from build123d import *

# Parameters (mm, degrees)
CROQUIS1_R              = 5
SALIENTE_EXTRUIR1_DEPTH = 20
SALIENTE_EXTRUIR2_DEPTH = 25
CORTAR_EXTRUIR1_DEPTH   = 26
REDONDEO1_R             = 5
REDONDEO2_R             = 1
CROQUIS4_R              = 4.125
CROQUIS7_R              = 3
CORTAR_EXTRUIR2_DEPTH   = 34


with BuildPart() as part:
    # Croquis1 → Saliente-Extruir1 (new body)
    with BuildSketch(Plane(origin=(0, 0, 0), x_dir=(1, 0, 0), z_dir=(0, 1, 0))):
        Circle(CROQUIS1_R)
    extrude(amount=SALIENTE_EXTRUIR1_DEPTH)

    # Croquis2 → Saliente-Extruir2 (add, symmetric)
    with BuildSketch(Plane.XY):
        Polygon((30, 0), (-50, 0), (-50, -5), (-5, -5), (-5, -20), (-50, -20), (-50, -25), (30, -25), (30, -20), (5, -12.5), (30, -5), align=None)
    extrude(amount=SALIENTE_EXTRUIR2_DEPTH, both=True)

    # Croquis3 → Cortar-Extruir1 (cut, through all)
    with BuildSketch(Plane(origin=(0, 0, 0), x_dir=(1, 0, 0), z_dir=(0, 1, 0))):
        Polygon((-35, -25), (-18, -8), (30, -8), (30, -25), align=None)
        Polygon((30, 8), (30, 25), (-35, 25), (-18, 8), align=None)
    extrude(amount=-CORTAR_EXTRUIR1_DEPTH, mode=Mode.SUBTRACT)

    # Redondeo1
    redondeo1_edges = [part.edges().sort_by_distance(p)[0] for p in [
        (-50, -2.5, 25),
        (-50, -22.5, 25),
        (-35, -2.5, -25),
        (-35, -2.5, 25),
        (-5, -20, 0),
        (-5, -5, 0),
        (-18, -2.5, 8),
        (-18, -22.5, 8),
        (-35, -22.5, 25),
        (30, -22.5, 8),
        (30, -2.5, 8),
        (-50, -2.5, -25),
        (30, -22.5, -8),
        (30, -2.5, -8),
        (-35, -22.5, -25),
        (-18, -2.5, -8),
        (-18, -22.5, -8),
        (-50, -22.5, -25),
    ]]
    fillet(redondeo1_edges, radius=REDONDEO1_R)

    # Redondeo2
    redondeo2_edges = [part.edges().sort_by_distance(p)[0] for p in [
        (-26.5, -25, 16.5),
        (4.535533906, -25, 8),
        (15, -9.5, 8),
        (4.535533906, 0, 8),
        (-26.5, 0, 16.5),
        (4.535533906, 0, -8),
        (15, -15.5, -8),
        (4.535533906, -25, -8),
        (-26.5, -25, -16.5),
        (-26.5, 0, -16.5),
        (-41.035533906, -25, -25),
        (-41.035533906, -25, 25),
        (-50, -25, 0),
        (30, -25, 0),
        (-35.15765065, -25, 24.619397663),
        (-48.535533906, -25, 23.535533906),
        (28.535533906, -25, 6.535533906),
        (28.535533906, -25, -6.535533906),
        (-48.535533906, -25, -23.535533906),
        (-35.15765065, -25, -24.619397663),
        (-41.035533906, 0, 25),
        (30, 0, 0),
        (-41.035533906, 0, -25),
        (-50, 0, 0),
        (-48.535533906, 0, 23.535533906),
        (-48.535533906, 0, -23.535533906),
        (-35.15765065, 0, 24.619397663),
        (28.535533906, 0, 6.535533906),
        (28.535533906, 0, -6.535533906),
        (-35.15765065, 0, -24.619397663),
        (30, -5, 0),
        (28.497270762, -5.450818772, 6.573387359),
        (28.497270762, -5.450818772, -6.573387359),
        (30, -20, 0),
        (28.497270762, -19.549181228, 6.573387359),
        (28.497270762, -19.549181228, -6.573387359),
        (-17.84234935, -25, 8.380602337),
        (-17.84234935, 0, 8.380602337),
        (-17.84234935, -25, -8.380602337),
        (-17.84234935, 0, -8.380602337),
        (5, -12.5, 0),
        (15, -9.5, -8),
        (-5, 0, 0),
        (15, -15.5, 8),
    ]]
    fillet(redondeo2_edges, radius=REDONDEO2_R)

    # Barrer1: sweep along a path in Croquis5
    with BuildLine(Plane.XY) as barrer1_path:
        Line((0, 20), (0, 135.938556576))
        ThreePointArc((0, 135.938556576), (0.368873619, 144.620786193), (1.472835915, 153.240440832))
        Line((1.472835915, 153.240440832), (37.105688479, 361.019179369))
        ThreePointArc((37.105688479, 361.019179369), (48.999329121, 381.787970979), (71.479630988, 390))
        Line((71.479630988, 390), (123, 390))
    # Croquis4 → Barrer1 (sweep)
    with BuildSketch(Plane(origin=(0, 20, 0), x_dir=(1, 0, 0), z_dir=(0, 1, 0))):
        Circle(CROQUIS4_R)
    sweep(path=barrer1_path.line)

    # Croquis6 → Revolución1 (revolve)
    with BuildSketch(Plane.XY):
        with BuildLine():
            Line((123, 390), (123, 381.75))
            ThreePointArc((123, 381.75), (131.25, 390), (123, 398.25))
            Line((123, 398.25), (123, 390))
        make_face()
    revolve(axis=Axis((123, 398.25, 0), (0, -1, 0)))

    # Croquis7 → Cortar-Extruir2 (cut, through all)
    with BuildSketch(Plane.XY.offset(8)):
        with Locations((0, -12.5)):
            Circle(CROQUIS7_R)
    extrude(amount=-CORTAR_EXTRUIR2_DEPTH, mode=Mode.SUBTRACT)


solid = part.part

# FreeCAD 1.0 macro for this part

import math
import FreeCAD as App
import Part
import Sketcher

V = App.Vector


def edges_at(feature, points):
    """Names of the edges that pass closest to the given points."""
    edges = feature.Shape.Edges
    near = lambda p: min(range(len(edges)), key=lambda i: edges[i].distToShape(Part.Vertex(*p))[0])
    return sorted({f"Edge{near(p) + 1}" for p in points})

doc = App.newDocument("Part")
params = doc.addObject("Spreadsheet::Sheet", "Params")
for row, (alias, value) in enumerate([
    ("sketch1_diameter", "10 mm"),
    ("pad1_length", "20 mm"),
    ("sketch2_width", "80 mm"),
    ("sketch2_width2", "45 mm"),
    ("sketch2_height", "5 mm"),
    ("sketch2_height2", "15 mm"),
    ("pad2_length", "50 mm"),
    ("sketch3_width", "65 mm"),
    ("sketch3_width2", "48 mm"),
    ("fillet_radius", "5 mm"),
    ("fillet2_radius", "1 mm"),
    ("sketch4_diameter", "8.25 mm"),
    ("sketch6_radius", "8.25 mm"),
    ("revolution_angle", "360 deg"),
    ("sketch7_diameter", "6 mm"),
], start=1):
    params.set(f"A{row}", alias)
    params.set(f"B{row}", "=" + value)
    params.setAlias(f"B{row}", alias)

body = doc.addObject("PartDesign::Body", "Body")

# Sketch on XZ plane
sketch1 = doc.addObject("Sketcher::SketchObject", "Sketch")
body.addObject(sketch1)
sketch1.AttachmentSupport = (doc.XZ_Plane, [""])
sketch1.MapMode = "FlatFace"
sketch1.addGeometry(Part.Circle(V(0, 0, 0), V(0, 0, 1), 5), False)
sketch1.addConstraint([
    Sketcher.Constraint("Coincident", 0, 3, -1, 1),
    Sketcher.Constraint("Diameter", 0, 10.0),
])
sketch1.setExpression("Constraints[1]", "Params.sketch1_diameter")
pad1 = doc.addObject("PartDesign::Pad", "Pad")
body.addObject(pad1)
pad1.Profile = sketch1
pad1.setExpression("Length", "Params.pad1_length")
pad1.Reversed = True

# Sketch on XY plane
sketch2 = doc.addObject("Sketcher::SketchObject", "Sketch001")
body.addObject(sketch2)
sketch2.AttachmentSupport = (doc.XY_Plane, [""])
sketch2.MapMode = "FlatFace"
sketch2.addGeometry([
    Part.LineSegment(V(30, 0, 0), V(-50, 0, 0)),  # 0
    Part.LineSegment(V(-50, 0, 0), V(-50, -5, 0)),  # 1
    Part.LineSegment(V(-50, -5, 0), V(-5, -5, 0)),  # 2
    Part.LineSegment(V(-5, -5, 0), V(-5, -20, 0)),  # 3
    Part.LineSegment(V(-5, -20, 0), V(-50, -20, 0)),  # 4
    Part.LineSegment(V(-50, -20, 0), V(-50, -25, 0)),  # 5
    Part.LineSegment(V(-50, -25, 0), V(30, -25, 0)),  # 6
    Part.LineSegment(V(30, -25, 0), V(30, -20, 0)),  # 7
    Part.LineSegment(V(30, -20, 0), V(5, -12.5, 0)),  # 8
    Part.LineSegment(V(5, -12.5, 0), V(30, -5, 0)),  # 9
    Part.LineSegment(V(30, -5, 0), V(30, 0, 0)),  # 10
], False)
sketch2.addConstraint([
    Sketcher.Constraint("Coincident", 0, 2, 1, 1),
    Sketcher.Constraint("Coincident", 1, 2, 2, 1),
    Sketcher.Constraint("Coincident", 2, 2, 3, 1),
    Sketcher.Constraint("Coincident", 3, 2, 4, 1),
    Sketcher.Constraint("Coincident", 4, 2, 5, 1),
    Sketcher.Constraint("Coincident", 5, 2, 6, 1),
    Sketcher.Constraint("Coincident", 6, 2, 7, 1),
    Sketcher.Constraint("Coincident", 7, 2, 8, 1),
    Sketcher.Constraint("Coincident", 8, 2, 9, 1),
    Sketcher.Constraint("Coincident", 9, 2, 10, 1),
    Sketcher.Constraint("Coincident", 10, 2, 0, 1),
    Sketcher.Constraint("Horizontal", 0),
    Sketcher.Constraint("Vertical", 1),
    Sketcher.Constraint("Horizontal", 2),
    Sketcher.Constraint("Vertical", 3),
    Sketcher.Constraint("Horizontal", 4),
    Sketcher.Constraint("Vertical", 5),
    Sketcher.Constraint("Horizontal", 6),
    Sketcher.Constraint("Vertical", 7),
    Sketcher.Constraint("Vertical", 10),
    Sketcher.Constraint("PointOnObject", 0, 2, -1),
    Sketcher.Constraint("Horizontal", 4, 2, 7, 2),
    Sketcher.Constraint("Horizontal", 2, 2, 9, 2),
    Sketcher.Constraint("Vertical", 1, 2, 4, 2),
    Sketcher.Constraint("Vertical", 7, 2, 9, 2),
    Sketcher.Constraint("Equal", 1, 5),
    Sketcher.Constraint("Equal", 8, 9),
    Sketcher.Constraint("DistanceX", 0, 2, 0, 1, 80.0),
    Sketcher.Constraint("DistanceX", 2, 1, 2, 2, 45.0),
    Sketcher.Constraint("DistanceY", 1, 2, 1, 1, 5.0),
    Sketcher.Constraint("DistanceY", 3, 2, 3, 1, 15.0),
    Sketcher.Constraint("DistanceX", 0, 2, -1, 1, 50.0),
    Sketcher.Constraint("DistanceX", -1, 1, 8, 2, 5.0),
])
sketch2.setExpression("Constraints[27]", "Params.sketch2_width")
sketch2.setExpression("Constraints[28]", "Params.sketch2_width2")
sketch2.setExpression("Constraints[29]", "Params.sketch2_height")
sketch2.setExpression("Constraints[30]", "Params.sketch2_height2")
pad2 = doc.addObject("PartDesign::Pad", "Pad001")
body.addObject(pad2)
pad2.Profile = sketch2
pad2.setExpression("Length", "Params.pad2_length")
pad2.Midplane = True

# Sketch on XZ plane
sketch3 = doc.addObject("Sketcher::SketchObject", "Sketch002")
body.addObject(sketch3)
sketch3.AttachmentSupport = (doc.XZ_Plane, [""])
sketch3.MapMode = "FlatFace"
sketch3.addGeometry([
    Part.LineSegment(V(-18, 8, 0), V(-35, 25, 0)),  # 0
    Part.LineSegment(V(-35, 25, 0), V(30, 25, 0)),  # 1
    Part.LineSegment(V(30, 25, 0), V(30, 8, 0)),  # 2
    Part.LineSegment(V(30, 8, 0), V(-18, 8, 0)),  # 3
    Part.LineSegment(V(30, -8, 0), V(30, -25, 0)),  # 4
    Part.LineSegment(V(30, -25, 0), V(-35, -25, 0)),  # 5
    Part.LineSegment(V(-35, -25, 0), V(-18, -8, 0)),  # 6
    Part.LineSegment(V(-18, -8, 0), V(30, -8, 0)),  # 7
], False)
sketch3.addConstraint([
    Sketcher.Constraint("Coincident", 0, 2, 1, 1),
    Sketcher.Constraint("Coincident", 1, 2, 2, 1),
    Sketcher.Constraint("Coincident", 2, 2, 3, 1),
    Sketcher.Constraint("Coincident", 3, 2, 0, 1),
    Sketcher.Constraint("Coincident", 4, 2, 5, 1),
    Sketcher.Constraint("Coincident", 5, 2, 6, 1),
    Sketcher.Constraint("Coincident", 6, 2, 7, 1),
    Sketcher.Constraint("Coincident", 7, 2, 4, 1),
    Sketcher.Constraint("Horizontal", 1),
    Sketcher.Constraint("Vertical", 2),
    Sketcher.Constraint("Horizontal", 3),
    Sketcher.Constraint("Vertical", 4),
    Sketcher.Constraint("Horizontal", 5),
    Sketcher.Constraint("Horizontal", 7),
    Sketcher.Constraint("Symmetric", 1, 2, 4, 2, -1),
    Sketcher.Constraint("Symmetric", 3, 2, 6, 2, -1),
    Sketcher.Constraint("Perpendicular", 0, 6),
    Sketcher.Constraint("Vertical", 0, 2, 5, 2),
    Sketcher.Constraint("DistanceX", 1, 1, 1, 2, 65.0),
    Sketcher.Constraint("DistanceX", 3, 2, 3, 1, 48.0),
    Sketcher.Constraint("DistanceX", 0, 2, -1, 1, 35.0),
    Sketcher.Constraint("DistanceY", -1, 1, 0, 2, 25.0),
])
sketch3.setExpression("Constraints[18]", "Params.sketch3_width")
sketch3.setExpression("Constraints[19]", "Params.sketch3_width2")
pocket1 = doc.addObject("PartDesign::Pocket", "Pocket")
body.addObject(pocket1)
pocket1.Profile = sketch3
pocket1.Type = "ThroughAll"
pocket1.Reversed = True
doc.recompute()

fillet = doc.addObject("PartDesign::Fillet", "Fillet")
body.addObject(fillet)
fillet.Base = (pocket1, edges_at(pocket1, [
    (-50, -2.5, 25),
    (-50, -22.5, 25),
    (-35, -2.5, -25),
    (-35, -2.5, 25),
    (-5, -20, 0),
    (-5, -5, 0),
    (-18, -2.5, 8),
    (-18, -22.5, 8),
    (-35, -22.5, 25),
    (30, -22.5, 8),
    (30, -2.5, 8),
    (-50, -2.5, -25),
    (30, -22.5, -8),
    (30, -2.5, -8),
    (-35, -22.5, -25),
    (-18, -2.5, -8),
    (-18, -22.5, -8),
    (-50, -22.5, -25),
]))
fillet.setExpression("Radius", "Params.fillet_radius")
doc.recompute()

fillet2 = doc.addObject("PartDesign::Fillet", "Fillet001")
body.addObject(fillet2)
fillet2.Base = (fillet, edges_at(fillet, [
    (-26.5, -25, 16.5),
    (4.536, -25, 8),
    (15, -9.5, 8),
    (4.536, 0, 8),
    (-26.5, 0, 16.5),
    (4.536, 0, -8),
    (15, -15.5, -8),
    (4.536, -25, -8),
    (-26.5, -25, -16.5),
    (-26.5, 0, -16.5),
    (-41.036, -25, -25),
    (-41.036, -25, 25),
    (-50, -25, 0),
    (30, -25, 0),
    (-35.158, -25, 24.619),
    (-48.536, -25, 23.536),
    (28.536, -25, 6.536),
    (28.536, -25, -6.536),
    (-48.536, -25, -23.536),
    (-35.158, -25, -24.619),
    (-41.036, 0, 25),
    (30, 0, 0),
    (-41.036, 0, -25),
    (-50, 0, 0),
    (-48.536, 0, 23.536),
    (-48.536, 0, -23.536),
    (-35.158, 0, 24.619),
    (28.536, 0, 6.536),
    (28.536, 0, -6.536),
    (-35.158, 0, -24.619),
    (30, -5, 0),
    (28.497, -5.451, 6.573),
    (28.497, -5.451, -6.573),
    (30, -20, 0),
    (28.497, -19.549, 6.573),
    (28.497, -19.549, -6.573),
    (-17.842, -25, 8.381),
    (-17.842, 0, 8.381),
    (-17.842, -25, -8.381),
    (-17.842, 0, -8.381),
    (5, -12.5, 0),
    (15, -9.5, -8),
    (-5, 0, 0),
    (15, -15.5, 8),
]))
fillet2.setExpression("Radius", "Params.fillet2_radius")

# Sketch on XZ plane
sketch4 = doc.addObject("Sketcher::SketchObject", "Sketch003")
body.addObject(sketch4)
sketch4.AttachmentSupport = (doc.XZ_Plane, [""])
sketch4.MapMode = "FlatFace"
sketch4.AttachmentOffset = App.Placement(V(0, 0, -20), App.Rotation())
sketch4.addGeometry(Part.Circle(V(0, 0, 0), V(0, 0, 1), 4.125), False)
sketch4.addConstraint([
    Sketcher.Constraint("Coincident", 0, 3, -1, 1),
    Sketcher.Constraint("Diameter", 0, 8.25),
])
sketch4.setExpression("Constraints[1]", "Params.sketch4_diameter")

# Sketch on XY plane
sketch5 = doc.addObject("Sketcher::SketchObject", "Sketch004")
body.addObject(sketch5)
sketch5.AttachmentSupport = (doc.XY_Plane, [""])
sketch5.MapMode = "FlatFace"
sketch5.addGeometry([
    Part.LineSegment(V(0, 20, 0), V(0, 135.938557, 0)),  # 0
    Part.ArcOfCircle(Part.Circle(V(102.361859, 135.938557, 0), V(0, 0, 1), 102.361859), math.radians(170.268768), math.radians(180)),  # 1
    Part.LineSegment(V(1.472836, 153.240441, 0), V(37.105688, 361.019179, 0)),  # 2
    Part.ArcOfCircle(Part.Circle(V(71.479631, 355.124247, 0), V(0, 0, 1), 34.875753), math.radians(90), math.radians(170.268768)),  # 3
    Part.LineSegment(V(71.479631, 390, 0), V(123, 390, 0)),  # 4
], False)
sketch5.addConstraint([
    Sketcher.Constraint("Tangent", 0, 2, 1, 2),
    Sketcher.Constraint("Tangent", 1, 1, 2, 1),
    Sketcher.Constraint("Tangent", 2, 2, 3, 2),
    Sketcher.Constraint("Tangent", 3, 1, 4, 1),
    Sketcher.Constraint("Vertical", 0),
    Sketcher.Constraint("Horizontal", 4),
    Sketcher.Constraint("PointOnObject", 0, 1, -2),
    Sketcher.Constraint("DistanceY", -1, 1, 0, 1, 20.0),
    Sketcher.Constraint("DistanceY", -1, 1, 3, 1, 390.0),
    Sketcher.Constraint("DistanceX", -1, 1, 4, 2, 123.0),
    Sketcher.Constraint("Radius", 1, 102.361859),
    Sketcher.Constraint("Radius", 3, 34.875753),
    Sketcher.Constraint("DistanceX", 4, 1, 4, 2, 51.520369),
    Sketcher.Constraint("Distance", 2, 210.812012),
])
doc.recompute()

additivepipe = doc.addObject("PartDesign::AdditivePipe", "AdditivePipe")
body.addObject(additivepipe)
additivepipe.Profile = sketch4
additivepipe.Spine = (sketch5, ["Edge1", "Edge2", "Edge3", "Edge4", "Edge5"])

# Sketch on XY plane
sketch6 = doc.addObject("Sketcher::SketchObject", "Sketch005")
body.addObject(sketch6)
sketch6.AttachmentSupport = (doc.XY_Plane, [""])
sketch6.MapMode = "FlatFace"
sketch6.addGeometry([
    Part.ArcOfCircle(Part.Circle(V(123, 390, 0), V(0, 0, 1), 8.25), math.radians(-90), math.radians(90)),
    Part.LineSegment(V(123, 398.25, 0), V(123, 381.75, 0)),
], False)
sketch6.addGeometry(Part.LineSegment(V(123, 398.25, 0), V(123, 381.75, 0)), True)  # axis
sketch6.addConstraint([
    Sketcher.Constraint("Coincident", 0, 1, 1, 2),
    Sketcher.Constraint("Coincident", 1, 1, 0, 2),
    Sketcher.Constraint("Vertical", 1),
    Sketcher.Constraint("Vertical", 2),
    Sketcher.Constraint("Coincident", 2, 1, 1, 1),
    Sketcher.Constraint("Equal", 1, 2),
    Sketcher.Constraint("Radius", 0, 8.25),
    Sketcher.Constraint("DistanceX", -1, 1, 0, 3, 123.0),
    Sketcher.Constraint("DistanceY", -1, 1, 0, 3, 390.0),
    Sketcher.Constraint("DistanceX", -1, 1, 0, 1, 123.0),
])
sketch6.setExpression("Constraints[6]", "Params.sketch6_radius")
revolution = doc.addObject("PartDesign::Revolution", "Revolution")
body.addObject(revolution)
revolution.Profile = sketch6
revolution.ReferenceAxis = (sketch6, ["Axis0"])
revolution.setExpression("Angle", "Params.revolution_angle")

# Sketch on XY plane
sketch7 = doc.addObject("Sketcher::SketchObject", "Sketch006")
body.addObject(sketch7)
sketch7.AttachmentSupport = (doc.XY_Plane, [""])
sketch7.MapMode = "FlatFace"
sketch7.AttachmentOffset = App.Placement(V(0, 0, 8), App.Rotation())
sketch7.addGeometry(Part.Circle(V(0, -12.5, 0), V(0, 0, 1), 3), False)
sketch7.addConstraint([
    Sketcher.Constraint("PointOnObject", 0, 3, -2),
    Sketcher.Constraint("Diameter", 0, 6.0),
    Sketcher.Constraint("DistanceY", 0, 3, -1, 1, 12.5),
])
sketch7.setExpression("Constraints[1]", "Params.sketch7_diameter")
pocket2 = doc.addObject("PartDesign::Pocket", "Pocket001")
body.addObject(pocket2)
pocket2.Profile = sketch7
pocket2.Type = "ThroughAll"

doc.recompute()
